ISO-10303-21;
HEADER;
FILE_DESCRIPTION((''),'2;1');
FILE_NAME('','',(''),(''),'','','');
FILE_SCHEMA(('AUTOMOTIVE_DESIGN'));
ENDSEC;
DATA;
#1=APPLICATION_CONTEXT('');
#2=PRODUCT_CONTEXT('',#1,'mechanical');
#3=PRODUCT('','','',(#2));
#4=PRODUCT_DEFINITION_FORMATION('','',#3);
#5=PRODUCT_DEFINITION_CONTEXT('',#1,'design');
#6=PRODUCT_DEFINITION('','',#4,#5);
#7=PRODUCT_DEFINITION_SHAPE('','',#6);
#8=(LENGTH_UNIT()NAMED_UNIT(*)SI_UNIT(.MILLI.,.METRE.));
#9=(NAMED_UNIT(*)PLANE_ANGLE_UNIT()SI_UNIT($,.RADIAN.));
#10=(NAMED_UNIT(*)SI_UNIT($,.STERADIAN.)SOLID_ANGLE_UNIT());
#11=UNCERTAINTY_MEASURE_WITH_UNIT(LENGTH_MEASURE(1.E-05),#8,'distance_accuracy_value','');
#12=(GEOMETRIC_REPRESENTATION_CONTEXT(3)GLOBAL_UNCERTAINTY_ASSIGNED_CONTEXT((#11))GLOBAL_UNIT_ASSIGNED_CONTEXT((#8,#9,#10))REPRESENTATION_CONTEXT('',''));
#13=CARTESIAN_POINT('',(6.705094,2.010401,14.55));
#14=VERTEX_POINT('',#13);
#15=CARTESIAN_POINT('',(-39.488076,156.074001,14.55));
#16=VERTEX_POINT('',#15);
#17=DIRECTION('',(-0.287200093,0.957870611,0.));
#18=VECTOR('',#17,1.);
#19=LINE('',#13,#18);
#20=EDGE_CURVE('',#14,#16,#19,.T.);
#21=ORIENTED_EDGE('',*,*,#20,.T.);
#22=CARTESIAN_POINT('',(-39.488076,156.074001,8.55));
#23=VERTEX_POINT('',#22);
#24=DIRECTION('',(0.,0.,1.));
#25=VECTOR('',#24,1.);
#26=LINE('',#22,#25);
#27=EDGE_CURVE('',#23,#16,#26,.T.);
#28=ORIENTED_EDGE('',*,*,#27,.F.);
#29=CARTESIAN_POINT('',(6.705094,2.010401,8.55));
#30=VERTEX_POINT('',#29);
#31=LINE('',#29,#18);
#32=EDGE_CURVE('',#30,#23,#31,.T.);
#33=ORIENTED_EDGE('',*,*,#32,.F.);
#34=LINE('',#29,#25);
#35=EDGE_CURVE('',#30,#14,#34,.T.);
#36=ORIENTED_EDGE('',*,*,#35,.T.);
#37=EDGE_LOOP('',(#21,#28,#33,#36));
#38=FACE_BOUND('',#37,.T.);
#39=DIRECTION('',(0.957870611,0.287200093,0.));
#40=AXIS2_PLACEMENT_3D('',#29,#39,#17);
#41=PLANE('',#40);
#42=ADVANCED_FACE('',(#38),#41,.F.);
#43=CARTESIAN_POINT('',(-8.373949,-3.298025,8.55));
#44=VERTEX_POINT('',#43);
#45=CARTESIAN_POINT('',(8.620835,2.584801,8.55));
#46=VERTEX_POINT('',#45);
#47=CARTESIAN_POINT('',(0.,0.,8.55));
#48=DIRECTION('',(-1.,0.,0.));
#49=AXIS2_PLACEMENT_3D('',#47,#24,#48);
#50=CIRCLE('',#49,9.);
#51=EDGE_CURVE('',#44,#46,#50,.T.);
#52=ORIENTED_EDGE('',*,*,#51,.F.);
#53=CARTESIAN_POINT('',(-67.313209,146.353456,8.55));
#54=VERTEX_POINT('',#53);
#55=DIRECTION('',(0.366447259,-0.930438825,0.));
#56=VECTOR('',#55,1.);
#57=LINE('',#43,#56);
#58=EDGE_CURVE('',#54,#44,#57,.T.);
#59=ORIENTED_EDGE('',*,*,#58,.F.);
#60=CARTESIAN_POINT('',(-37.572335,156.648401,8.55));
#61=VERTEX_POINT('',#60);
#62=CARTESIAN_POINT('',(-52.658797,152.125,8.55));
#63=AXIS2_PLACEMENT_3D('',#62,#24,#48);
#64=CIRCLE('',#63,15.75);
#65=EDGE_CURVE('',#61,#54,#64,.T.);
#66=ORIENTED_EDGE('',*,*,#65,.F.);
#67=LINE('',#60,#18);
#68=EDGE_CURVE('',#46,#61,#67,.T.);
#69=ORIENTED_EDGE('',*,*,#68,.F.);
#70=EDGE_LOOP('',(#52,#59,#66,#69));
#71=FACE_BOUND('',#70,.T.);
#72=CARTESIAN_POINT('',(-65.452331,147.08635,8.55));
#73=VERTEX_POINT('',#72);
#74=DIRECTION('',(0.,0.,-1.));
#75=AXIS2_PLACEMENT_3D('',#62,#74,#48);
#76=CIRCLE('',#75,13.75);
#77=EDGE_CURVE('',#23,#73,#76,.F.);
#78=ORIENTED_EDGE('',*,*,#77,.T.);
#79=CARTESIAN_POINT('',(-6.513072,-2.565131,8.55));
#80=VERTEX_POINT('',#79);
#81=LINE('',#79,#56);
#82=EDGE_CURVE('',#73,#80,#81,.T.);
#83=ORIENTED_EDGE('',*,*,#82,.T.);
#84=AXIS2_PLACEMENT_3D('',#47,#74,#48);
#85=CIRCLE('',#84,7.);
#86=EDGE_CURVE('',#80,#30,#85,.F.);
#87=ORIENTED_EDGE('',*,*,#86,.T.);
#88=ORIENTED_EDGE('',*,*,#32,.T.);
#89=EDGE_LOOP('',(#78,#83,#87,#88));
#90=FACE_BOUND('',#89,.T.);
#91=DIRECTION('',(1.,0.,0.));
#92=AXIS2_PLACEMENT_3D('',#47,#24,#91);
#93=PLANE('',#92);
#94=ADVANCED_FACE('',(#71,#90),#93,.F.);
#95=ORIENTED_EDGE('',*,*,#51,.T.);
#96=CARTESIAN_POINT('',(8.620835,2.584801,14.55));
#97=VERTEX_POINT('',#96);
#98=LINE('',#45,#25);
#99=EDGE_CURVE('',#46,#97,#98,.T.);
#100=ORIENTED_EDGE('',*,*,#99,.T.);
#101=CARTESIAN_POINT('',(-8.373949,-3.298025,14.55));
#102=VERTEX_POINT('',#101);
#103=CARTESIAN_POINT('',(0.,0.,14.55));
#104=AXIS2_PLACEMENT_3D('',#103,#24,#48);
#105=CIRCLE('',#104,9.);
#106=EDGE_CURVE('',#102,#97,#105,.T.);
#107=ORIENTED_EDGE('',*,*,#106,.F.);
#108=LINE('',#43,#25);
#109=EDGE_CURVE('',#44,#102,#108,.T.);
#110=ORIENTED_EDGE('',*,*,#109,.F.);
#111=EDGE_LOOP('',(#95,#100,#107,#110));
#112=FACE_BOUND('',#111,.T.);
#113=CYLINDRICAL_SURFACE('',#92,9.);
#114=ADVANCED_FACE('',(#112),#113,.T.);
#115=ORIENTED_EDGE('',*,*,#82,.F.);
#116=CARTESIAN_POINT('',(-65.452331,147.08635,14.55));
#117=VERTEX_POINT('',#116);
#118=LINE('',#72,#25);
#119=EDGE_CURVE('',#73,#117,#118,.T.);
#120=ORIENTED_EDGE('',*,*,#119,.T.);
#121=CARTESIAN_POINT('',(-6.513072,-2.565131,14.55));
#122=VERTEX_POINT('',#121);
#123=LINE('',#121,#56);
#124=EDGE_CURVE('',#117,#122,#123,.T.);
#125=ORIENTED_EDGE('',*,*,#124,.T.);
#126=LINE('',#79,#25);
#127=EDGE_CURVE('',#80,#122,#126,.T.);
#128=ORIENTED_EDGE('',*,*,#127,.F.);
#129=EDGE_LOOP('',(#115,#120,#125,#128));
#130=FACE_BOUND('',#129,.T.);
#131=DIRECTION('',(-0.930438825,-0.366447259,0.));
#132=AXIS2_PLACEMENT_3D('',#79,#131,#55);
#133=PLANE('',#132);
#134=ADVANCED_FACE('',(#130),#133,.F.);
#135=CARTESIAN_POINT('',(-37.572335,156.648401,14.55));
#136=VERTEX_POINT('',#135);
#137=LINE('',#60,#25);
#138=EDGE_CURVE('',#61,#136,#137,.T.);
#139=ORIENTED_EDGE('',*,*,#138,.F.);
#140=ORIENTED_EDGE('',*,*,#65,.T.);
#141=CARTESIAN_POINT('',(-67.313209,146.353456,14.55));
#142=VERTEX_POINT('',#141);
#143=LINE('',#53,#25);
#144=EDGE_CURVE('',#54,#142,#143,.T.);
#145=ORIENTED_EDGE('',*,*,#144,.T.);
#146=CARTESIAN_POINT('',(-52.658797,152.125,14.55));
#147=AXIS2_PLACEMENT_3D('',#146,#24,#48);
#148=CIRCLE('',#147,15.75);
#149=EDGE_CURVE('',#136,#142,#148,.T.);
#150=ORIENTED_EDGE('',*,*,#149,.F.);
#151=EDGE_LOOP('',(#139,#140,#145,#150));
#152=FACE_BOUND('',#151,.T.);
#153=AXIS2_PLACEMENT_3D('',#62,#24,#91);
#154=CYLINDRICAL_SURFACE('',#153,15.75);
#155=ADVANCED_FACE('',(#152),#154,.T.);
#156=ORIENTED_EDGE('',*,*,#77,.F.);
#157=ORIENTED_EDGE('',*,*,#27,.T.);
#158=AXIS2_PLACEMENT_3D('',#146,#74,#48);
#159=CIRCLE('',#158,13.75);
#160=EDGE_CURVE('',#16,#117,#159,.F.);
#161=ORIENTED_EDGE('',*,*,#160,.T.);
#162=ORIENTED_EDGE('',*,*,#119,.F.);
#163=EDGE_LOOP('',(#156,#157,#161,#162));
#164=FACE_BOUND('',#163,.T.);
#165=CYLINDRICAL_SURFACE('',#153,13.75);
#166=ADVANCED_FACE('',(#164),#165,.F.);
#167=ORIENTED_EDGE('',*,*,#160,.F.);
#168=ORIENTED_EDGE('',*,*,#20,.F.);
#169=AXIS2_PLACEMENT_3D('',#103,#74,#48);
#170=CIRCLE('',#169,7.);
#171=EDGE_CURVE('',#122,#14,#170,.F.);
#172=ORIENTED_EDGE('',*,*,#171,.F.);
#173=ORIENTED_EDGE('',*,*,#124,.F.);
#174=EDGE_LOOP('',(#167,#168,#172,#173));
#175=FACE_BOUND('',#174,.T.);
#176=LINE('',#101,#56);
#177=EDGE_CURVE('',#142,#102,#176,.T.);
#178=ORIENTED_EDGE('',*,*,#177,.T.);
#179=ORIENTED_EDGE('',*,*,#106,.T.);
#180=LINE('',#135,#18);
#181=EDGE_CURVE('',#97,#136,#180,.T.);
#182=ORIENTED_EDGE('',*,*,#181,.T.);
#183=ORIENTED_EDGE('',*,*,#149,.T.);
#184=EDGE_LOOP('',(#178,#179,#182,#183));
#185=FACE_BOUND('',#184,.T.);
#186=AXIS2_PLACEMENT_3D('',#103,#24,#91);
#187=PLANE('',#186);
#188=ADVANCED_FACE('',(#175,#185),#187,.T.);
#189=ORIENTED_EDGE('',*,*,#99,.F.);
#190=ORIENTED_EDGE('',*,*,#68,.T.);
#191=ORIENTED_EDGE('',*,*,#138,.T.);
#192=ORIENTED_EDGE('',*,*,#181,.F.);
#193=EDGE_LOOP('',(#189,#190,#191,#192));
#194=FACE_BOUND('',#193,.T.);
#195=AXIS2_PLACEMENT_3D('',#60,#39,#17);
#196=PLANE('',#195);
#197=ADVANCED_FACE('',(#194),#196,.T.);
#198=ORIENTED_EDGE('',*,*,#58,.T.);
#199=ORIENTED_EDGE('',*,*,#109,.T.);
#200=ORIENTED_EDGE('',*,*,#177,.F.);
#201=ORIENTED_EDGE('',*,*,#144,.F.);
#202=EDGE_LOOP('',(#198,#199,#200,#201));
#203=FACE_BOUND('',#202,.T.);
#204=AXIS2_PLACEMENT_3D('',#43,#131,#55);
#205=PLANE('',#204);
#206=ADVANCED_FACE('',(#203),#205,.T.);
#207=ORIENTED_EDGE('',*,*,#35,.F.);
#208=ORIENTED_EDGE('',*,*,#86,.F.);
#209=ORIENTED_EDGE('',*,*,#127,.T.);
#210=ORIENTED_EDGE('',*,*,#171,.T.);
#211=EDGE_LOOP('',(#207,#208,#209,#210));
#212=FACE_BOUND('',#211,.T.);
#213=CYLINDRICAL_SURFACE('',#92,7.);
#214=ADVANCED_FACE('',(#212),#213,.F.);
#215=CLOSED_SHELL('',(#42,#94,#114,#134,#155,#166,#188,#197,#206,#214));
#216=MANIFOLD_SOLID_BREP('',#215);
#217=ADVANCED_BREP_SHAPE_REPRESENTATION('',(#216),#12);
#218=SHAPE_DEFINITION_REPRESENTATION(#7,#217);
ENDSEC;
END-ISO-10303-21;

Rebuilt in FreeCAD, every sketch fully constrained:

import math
import FreeCAD as App
import Part
import Sketcher

V = App.Vector
Q = App.Units.Quantity

doc = App.newDocument("Part")
body = doc.addObject("PartDesign::Body", "Body")

# Sketch on XY plane
sketch1 = body.newObject("Sketcher::SketchObject", "Sketch")
sketch1.AttachmentSupport = (doc.getObject("XY_Plane"), [""])
sketch1.MapMode = "FlatFace"
sketch1.AttachmentOffset = App.Placement(V(0, 0, 8.55), App.Rotation())
sketch1.addGeometry(Part.LineSegment(V(9, 3, 0), V(-38, 157, 0)), False)
sketch1.addGeometry(Part.ArcOfCircle(Part.Circle(V(-53, 152, 0), V(0, 0, 1), 16), math.radians(17), math.radians(201)), False)
sketch1.addGeometry(Part.LineSegment(V(-67, 146, 0), V(-8, -3, 0)), False)
sketch1.addGeometry(Part.ArcOfCircle(Part.Circle(V(0, 0, 0), V(0, 0, 1), 9), math.radians(-159), math.radians(17)), False)
sketch1.addGeometry(Part.LineSegment(V(-39, 156, 0), V(7, 2, 0)), False)
sketch1.addGeometry(Part.ArcOfCircle(Part.Circle(V(0, 0, 0), V(0, 0, 1), 7), math.radians(-159), math.radians(17)), False)
sketch1.addGeometry(Part.LineSegment(V(-7, -3, 0), V(-65, 147, 0)), False)
sketch1.addGeometry(Part.ArcOfCircle(Part.Circle(V(-53, 152, 0), V(0, 0, 1), 14), math.radians(17), math.radians(201)), False)
sketch1.addConstraint(Sketcher.Constraint("Tangent", 0, 2, 1, 1))
sketch1.addConstraint(Sketcher.Constraint("Tangent", 1, 2, 2, 1))
sketch1.addConstraint(Sketcher.Constraint("Tangent", 2, 2, 3, 1))
sketch1.addConstraint(Sketcher.Constraint("Tangent", 3, 2, 0, 1))
sketch1.addConstraint(Sketcher.Constraint("Tangent", 4, 2, 5, 2))
sketch1.addConstraint(Sketcher.Constraint("Tangent", 5, 1, 6, 1))
sketch1.addConstraint(Sketcher.Constraint("Tangent", 6, 2, 7, 2))
sketch1.addConstraint(Sketcher.Constraint("Tangent", 7, 1, 4, 1))
sketch1.addConstraint(Sketcher.Constraint("Coincident", 3, 3, -1, 1))
sketch1.addConstraint(Sketcher.Constraint("Coincident", 5, 3, -1, 1))
sketch1.addConstraint(Sketcher.Constraint("Coincident", 7, 3, 1, 3))
sketch1.addConstraint(Sketcher.Constraint("Parallel", 0, 4))
sketch1.addConstraint(Sketcher.Constraint("Radius", 3, Q("9 mm")))
sketch1.addConstraint(Sketcher.Constraint("Radius", 5, Q("7 mm")))
sketch1.addConstraint(Sketcher.Constraint("Radius", 1, Q("15.75 mm")))
sketch1.addConstraint(Sketcher.Constraint("DistanceY", -1, 1, 1, 3, Q("152.125 mm")))
sketch1.addConstraint(Sketcher.Constraint("DistanceY", -1, 1, 7, 1, Q("156.074001 mm")))
pad1 = body.newObject("PartDesign::Pad", "Pad")
pad1.Profile = sketch1
pad1.Length = 6

doc.recompute()
